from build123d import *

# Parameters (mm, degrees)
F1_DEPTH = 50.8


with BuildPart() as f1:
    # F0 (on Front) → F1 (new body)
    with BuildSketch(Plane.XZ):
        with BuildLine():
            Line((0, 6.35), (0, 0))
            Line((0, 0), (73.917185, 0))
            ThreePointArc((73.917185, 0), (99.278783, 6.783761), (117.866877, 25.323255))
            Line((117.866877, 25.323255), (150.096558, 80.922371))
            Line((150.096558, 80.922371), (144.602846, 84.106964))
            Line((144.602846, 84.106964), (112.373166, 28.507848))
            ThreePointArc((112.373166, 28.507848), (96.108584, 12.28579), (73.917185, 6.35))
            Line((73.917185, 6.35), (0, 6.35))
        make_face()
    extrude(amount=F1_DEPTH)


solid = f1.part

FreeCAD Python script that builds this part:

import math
import FreeCAD as App
import Part
import Sketcher
Q = App.Units.Quantity

doc = App.newDocument("Part")
body = doc.addObject("PartDesign::Body", "Body")

sketch1 = doc.addObject("Sketcher::SketchObject", "Sketch")
body.addObject(sketch1)
sketch1.AttachmentSupport = (doc.XZ_Plane, [""])
sketch1.MapMode = "FlatFace"
sketch1.addGeometry([
    Part.LineSegment(App.Vector(0, 6.35, 0), App.Vector(0, 0, 0)),
    Part.LineSegment(App.Vector(0, 0, 0), App.Vector(73.917185, 0, 0)),
    Part.ArcOfCircle(Part.Circle(App.Vector(73.917183, 50.800002, 0), App.Vector(0, 0, 1), 50.800002), math.radians(-89.999998), math.radians(-30.100001)),
    Part.LineSegment(App.Vector(117.866877, 25.323255, 0), App.Vector(150.096558, 80.922371, 0)),
    Part.LineSegment(App.Vector(150.096558, 80.922371, 0), App.Vector(144.602846, 84.106964, 0)),
    Part.LineSegment(App.Vector(144.602846, 84.106964, 0), App.Vector(112.373166, 28.507848, 0)),
    Part.ArcOfCircle(Part.Circle(App.Vector(73.917187, 50.799996, 0), App.Vector(0, 0, 1), 44.449996), math.radians(-90.000003), math.radians(-30.099997)),
    Part.LineSegment(App.Vector(73.917185, 6.35, 0), App.Vector(0, 6.35, 0)),
], False)
sketch1.addConstraint([
    Sketcher.Constraint("Coincident", 0, 2, 1, 1),
    Sketcher.Constraint("Tangent", 1, 2, 2, 1),
    Sketcher.Constraint("Tangent", 2, 2, 3, 1),
    Sketcher.Constraint("Coincident", 3, 2, 4, 1),
    Sketcher.Constraint("Coincident", 4, 2, 5, 1),
    Sketcher.Constraint("Tangent", 5, 2, 6, 2),
    Sketcher.Constraint("Tangent", 6, 1, 7, 1),
    Sketcher.Constraint("Coincident", 7, 2, 0, 1),
    Sketcher.Constraint("Vertical", 0),
    Sketcher.Constraint("Horizontal", 1),
    Sketcher.Constraint("Horizontal", 7),
    Sketcher.Constraint("Coincident", 0, 2, -1, 1),
    Sketcher.Constraint("Coincident", 6, 3, 2, 3),
    Sketcher.Constraint("Perpendicular", 3, 4),
    Sketcher.Constraint("Perpendicular", 4, 5),
    Sketcher.Constraint("Radius", 2, Q("2.0000001 in")),
    Sketcher.Constraint("Radius", 6, Q("1.7499998 in")),
    Sketcher.Constraint("Angle", 3, Q("59.899999 deg")),
    Sketcher.Constraint("DistanceX", 6, 3, 4, 2, Q("2.7828999 in")),
    Sketcher.Constraint("DistanceX", 1, 1, 1, 2, 73.917185),
])
pad1 = doc.addObject("PartDesign::Pad", "Pad")
body.addObject(pad1)
pad1.Profile = sketch1
pad1.Length = Q("2 in")

doc.recompute()
